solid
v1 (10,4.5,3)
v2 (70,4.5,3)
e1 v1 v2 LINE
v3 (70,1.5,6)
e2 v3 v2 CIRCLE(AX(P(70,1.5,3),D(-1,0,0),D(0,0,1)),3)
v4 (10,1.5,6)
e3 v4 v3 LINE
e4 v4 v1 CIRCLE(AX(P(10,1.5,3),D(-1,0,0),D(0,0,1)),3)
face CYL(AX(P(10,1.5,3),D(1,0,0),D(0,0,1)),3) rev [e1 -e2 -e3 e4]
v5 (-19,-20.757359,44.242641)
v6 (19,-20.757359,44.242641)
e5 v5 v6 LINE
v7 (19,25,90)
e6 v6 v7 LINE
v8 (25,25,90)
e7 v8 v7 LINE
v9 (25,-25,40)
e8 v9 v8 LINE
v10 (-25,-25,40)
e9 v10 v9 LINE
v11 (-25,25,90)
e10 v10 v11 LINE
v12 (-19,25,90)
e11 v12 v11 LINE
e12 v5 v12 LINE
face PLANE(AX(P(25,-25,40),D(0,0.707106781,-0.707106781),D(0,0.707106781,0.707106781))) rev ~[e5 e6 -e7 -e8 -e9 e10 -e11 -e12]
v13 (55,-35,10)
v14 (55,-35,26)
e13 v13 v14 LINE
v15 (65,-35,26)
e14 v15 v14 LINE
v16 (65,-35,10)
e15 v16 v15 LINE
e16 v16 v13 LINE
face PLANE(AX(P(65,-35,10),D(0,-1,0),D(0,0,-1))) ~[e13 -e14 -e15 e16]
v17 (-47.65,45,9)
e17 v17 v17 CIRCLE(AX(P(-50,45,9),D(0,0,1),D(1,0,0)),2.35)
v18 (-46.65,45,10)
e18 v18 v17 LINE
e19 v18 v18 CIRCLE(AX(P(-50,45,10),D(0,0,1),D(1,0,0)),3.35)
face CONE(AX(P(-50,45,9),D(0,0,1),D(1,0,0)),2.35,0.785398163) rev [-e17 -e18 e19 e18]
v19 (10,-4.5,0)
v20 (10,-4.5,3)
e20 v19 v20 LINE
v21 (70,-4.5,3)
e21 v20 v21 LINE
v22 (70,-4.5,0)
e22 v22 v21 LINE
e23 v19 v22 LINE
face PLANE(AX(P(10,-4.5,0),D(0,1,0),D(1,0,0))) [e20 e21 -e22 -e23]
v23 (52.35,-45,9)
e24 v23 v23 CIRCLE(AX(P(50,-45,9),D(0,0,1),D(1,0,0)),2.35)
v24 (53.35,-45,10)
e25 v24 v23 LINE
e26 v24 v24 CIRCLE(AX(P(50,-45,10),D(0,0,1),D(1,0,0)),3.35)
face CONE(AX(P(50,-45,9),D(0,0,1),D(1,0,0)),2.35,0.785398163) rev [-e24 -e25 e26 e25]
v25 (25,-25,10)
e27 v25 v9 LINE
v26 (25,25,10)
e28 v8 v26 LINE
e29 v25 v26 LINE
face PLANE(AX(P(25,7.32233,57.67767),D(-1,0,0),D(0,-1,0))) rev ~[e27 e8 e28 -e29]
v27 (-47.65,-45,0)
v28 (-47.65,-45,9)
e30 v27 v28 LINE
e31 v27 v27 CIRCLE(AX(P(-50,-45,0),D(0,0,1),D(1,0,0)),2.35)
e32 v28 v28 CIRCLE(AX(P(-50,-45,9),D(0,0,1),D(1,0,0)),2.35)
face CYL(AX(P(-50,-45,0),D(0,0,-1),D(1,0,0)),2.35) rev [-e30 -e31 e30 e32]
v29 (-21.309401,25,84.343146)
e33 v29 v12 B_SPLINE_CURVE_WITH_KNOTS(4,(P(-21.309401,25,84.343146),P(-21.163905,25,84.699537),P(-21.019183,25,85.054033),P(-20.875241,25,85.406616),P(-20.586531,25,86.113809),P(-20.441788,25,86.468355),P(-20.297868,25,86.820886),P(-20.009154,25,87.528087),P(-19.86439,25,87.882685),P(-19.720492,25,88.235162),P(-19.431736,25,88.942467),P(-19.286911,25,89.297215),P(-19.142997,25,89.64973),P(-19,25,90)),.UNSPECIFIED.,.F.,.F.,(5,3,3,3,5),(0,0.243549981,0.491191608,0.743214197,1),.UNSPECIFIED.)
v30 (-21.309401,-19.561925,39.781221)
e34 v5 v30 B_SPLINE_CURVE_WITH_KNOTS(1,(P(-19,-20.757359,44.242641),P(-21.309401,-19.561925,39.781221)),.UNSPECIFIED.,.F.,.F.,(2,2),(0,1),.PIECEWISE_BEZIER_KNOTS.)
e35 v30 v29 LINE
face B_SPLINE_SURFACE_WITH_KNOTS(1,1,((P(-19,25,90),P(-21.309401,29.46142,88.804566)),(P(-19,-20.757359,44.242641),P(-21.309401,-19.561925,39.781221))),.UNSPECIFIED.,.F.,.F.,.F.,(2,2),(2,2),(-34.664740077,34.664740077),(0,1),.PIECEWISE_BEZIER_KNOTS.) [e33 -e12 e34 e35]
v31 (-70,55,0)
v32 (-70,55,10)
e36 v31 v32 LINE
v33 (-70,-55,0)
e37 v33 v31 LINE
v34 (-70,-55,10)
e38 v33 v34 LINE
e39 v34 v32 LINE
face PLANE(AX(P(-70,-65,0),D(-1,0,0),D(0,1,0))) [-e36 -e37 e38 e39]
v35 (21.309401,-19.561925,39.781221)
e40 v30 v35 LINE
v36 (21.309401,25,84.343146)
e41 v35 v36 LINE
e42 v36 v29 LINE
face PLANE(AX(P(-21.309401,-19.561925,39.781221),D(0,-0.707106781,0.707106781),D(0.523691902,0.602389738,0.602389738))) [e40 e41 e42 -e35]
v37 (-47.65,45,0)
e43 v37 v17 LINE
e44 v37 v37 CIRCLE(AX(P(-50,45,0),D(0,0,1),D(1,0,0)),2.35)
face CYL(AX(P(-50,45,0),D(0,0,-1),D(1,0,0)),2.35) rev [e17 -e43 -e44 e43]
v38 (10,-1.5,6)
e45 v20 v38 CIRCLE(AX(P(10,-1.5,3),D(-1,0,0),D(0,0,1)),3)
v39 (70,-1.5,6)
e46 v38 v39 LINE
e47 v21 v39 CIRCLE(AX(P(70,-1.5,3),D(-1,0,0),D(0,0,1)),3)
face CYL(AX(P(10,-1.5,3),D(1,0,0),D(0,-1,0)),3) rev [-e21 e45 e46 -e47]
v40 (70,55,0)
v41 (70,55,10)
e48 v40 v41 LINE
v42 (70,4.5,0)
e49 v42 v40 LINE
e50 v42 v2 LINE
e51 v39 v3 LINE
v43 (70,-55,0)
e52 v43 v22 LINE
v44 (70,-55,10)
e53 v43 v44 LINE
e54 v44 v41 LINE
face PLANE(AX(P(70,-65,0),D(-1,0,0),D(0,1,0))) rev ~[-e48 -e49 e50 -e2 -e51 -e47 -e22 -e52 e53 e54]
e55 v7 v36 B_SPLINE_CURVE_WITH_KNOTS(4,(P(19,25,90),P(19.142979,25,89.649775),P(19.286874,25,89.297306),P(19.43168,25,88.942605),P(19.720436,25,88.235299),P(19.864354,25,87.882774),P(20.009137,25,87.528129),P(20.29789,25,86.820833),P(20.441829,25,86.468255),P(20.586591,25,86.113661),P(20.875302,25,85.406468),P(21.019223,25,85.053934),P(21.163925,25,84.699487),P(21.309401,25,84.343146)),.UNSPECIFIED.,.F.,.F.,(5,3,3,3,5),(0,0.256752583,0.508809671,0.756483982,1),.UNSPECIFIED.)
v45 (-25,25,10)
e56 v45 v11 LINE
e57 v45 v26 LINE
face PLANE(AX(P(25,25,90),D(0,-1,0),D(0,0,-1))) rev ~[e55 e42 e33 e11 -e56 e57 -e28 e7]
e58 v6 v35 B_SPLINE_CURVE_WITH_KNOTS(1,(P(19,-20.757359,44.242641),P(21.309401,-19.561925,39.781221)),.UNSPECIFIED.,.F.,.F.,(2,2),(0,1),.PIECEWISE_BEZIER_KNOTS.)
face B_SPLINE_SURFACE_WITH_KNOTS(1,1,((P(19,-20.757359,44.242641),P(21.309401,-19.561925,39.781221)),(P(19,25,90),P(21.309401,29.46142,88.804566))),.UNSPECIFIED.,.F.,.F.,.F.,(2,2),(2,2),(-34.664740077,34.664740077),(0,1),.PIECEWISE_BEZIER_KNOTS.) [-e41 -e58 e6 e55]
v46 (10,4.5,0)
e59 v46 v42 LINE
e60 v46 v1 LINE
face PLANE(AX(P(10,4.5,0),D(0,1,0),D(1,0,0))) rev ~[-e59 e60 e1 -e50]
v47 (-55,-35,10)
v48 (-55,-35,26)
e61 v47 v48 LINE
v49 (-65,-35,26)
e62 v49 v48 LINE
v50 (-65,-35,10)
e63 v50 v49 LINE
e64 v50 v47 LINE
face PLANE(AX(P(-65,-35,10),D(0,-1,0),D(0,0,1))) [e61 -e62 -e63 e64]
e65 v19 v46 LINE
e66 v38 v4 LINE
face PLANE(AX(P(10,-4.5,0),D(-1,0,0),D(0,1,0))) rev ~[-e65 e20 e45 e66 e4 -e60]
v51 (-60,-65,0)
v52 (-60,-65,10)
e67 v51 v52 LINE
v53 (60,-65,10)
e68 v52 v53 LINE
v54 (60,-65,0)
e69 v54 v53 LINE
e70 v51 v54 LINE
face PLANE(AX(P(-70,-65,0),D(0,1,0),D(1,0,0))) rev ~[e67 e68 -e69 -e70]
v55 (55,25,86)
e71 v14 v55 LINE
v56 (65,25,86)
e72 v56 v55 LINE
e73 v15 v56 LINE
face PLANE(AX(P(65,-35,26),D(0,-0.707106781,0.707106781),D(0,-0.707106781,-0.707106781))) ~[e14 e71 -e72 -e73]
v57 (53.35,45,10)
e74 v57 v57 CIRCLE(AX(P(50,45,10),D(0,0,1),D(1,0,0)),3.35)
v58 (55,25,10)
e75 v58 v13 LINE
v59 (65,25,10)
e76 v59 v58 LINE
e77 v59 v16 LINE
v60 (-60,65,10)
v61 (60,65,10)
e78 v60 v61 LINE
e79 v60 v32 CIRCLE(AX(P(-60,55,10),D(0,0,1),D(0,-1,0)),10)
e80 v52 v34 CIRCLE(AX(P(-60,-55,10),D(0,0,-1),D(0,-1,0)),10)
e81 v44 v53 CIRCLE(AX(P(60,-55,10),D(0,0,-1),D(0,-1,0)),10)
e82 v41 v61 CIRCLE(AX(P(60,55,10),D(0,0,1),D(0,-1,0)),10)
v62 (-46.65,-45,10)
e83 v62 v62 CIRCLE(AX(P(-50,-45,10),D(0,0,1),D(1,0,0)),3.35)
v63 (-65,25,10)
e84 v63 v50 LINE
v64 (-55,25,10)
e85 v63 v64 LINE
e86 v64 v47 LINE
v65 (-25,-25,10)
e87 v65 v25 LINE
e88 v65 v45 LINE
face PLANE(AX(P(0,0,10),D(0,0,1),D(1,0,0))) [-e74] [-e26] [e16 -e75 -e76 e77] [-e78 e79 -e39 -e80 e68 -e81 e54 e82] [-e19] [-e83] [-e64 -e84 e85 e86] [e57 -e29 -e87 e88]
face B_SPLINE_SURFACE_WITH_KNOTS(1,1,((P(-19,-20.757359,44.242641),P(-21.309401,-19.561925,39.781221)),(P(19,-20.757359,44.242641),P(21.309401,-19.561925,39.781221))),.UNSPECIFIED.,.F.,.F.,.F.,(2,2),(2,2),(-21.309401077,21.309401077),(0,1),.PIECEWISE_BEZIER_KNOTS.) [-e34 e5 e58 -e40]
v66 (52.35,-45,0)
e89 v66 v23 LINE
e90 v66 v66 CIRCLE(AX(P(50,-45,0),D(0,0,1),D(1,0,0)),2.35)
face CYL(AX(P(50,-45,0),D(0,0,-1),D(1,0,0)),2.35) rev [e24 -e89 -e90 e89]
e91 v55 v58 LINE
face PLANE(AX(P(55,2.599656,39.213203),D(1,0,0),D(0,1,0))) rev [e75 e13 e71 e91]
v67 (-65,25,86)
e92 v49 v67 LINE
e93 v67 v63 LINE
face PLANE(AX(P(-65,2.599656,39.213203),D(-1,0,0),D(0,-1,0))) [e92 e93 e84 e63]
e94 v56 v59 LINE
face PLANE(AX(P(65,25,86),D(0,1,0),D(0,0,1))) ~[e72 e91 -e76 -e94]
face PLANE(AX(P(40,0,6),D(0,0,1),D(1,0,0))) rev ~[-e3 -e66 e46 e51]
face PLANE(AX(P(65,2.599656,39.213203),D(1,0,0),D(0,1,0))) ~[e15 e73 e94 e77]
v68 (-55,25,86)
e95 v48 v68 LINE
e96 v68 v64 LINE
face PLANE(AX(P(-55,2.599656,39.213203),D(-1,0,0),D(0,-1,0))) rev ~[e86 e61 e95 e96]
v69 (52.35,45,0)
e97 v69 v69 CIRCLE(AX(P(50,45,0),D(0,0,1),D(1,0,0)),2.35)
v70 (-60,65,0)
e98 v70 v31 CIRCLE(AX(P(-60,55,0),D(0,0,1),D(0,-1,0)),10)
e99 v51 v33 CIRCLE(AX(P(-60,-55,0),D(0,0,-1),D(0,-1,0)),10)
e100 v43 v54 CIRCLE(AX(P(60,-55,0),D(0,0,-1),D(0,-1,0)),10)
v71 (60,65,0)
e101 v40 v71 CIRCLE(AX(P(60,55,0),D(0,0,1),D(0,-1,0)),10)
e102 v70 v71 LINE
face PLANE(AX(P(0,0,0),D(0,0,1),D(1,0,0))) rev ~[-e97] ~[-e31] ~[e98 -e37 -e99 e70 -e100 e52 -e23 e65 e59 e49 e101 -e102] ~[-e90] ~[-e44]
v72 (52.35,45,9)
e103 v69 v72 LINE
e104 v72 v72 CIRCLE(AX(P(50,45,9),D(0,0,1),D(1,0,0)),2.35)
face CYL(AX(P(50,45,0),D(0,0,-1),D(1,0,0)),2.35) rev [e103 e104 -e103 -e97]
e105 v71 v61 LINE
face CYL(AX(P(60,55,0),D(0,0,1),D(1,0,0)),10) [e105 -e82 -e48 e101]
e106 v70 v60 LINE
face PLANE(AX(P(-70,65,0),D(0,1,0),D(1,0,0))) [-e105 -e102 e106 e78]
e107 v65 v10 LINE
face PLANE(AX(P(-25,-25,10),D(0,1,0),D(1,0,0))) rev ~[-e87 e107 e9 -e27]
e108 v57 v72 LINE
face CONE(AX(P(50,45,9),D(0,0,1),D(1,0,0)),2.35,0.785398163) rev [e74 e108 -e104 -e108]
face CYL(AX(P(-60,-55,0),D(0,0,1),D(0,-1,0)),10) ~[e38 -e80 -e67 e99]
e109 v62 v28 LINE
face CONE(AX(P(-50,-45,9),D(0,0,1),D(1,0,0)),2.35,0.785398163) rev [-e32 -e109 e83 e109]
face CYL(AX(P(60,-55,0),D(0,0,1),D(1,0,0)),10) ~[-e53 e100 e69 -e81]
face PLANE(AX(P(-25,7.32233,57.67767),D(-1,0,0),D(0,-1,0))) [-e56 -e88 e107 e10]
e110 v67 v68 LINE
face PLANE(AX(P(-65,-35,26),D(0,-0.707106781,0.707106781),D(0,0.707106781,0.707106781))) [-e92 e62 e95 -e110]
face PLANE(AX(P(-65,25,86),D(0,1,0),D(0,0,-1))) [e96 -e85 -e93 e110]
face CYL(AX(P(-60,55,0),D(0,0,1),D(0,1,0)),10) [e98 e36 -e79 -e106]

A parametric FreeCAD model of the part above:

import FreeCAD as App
import Part
import Sketcher

V = App.Vector


def edges_at(feature, points):
    """Names of the edges that pass closest to the given points."""
    edges = feature.Shape.Edges
    near = lambda p: min(range(len(edges)), key=lambda i: edges[i].distToShape(Part.Vertex(*p))[0])
    return sorted({f"Edge{near(p) + 1}" for p in points})

doc = App.newDocument("Part")
body = doc.addObject("PartDesign::Body", "Body")

# Sketch on XY plane
sketch1 = body.newObject("Sketcher::SketchObject", "Sketch")
sketch1.AttachmentSupport = (doc.getObject("XY_Plane"), [""])
sketch1.MapMode = "FlatFace"
sketch1.addGeometry([
    Part.LineSegment(V(-70, 65, 0), V(-70, -65, 0)),  # 0
    Part.LineSegment(V(-70, -65, 0), V(70, -65, 0)),  # 1
    Part.LineSegment(V(70, -65, 0), V(70, 65, 0)),  # 2
    Part.LineSegment(V(70, 65, 0), V(-70, 65, 0)),  # 3
    Part.Circle(V(-50, -45, 0), V(0, 0, 1), 2.4),  # 4
    Part.Circle(V(50, -45, 0), V(0, 0, 1), 2.4),  # 5
    Part.Circle(V(-50, 45, 0), V(0, 0, 1), 2.4),  # 6
    Part.Circle(V(50, 45, 0), V(0, 0, 1), 2.4),  # 7
], False)
sketch1.addConstraint([
    Sketcher.Constraint("Coincident", 0, 2, 1, 1),
    Sketcher.Constraint("Coincident", 1, 2, 2, 1),
    Sketcher.Constraint("Coincident", 2, 2, 3, 1),
    Sketcher.Constraint("Coincident", 3, 2, 0, 1),
    Sketcher.Constraint("Vertical", 0),
    Sketcher.Constraint("Horizontal", 1),
    Sketcher.Constraint("Vertical", 2),
    Sketcher.Constraint("Horizontal", 3),
    Sketcher.Constraint("Equal", 4, 5),
    Sketcher.Constraint("Equal", 5, 6),
    Sketcher.Constraint("Equal", 6, 7),
    Sketcher.Constraint("Symmetric", 5, 3, 6, 3, -1, 1),
    Sketcher.Constraint("Symmetric", 4, 3, 7, 3, -1, 1),
    Sketcher.Constraint("Symmetric", 0, 2, 2, 2, -1, 1),
    Sketcher.Constraint("Symmetric", 4, 3, 5, 3, -2),
    Sketcher.Constraint("Diameter", 4, 4.7),
    Sketcher.Constraint("DistanceX", 1, 1, 1, 2, 140.0),
    Sketcher.Constraint("DistanceY", 0, 2, 0, 1, 130.0),
    Sketcher.Constraint("DistanceX", 4, 3, -1, 1, 50.0),
    Sketcher.Constraint("DistanceY", 4, 3, -1, 1, 45.0),
])
pad1 = body.newObject("PartDesign::Pad", "Pad")
pad1.Profile = sketch1
pad1.Length = 10

# Sketch on XY plane
sketch2 = body.newObject("Sketcher::SketchObject", "Sketch001")
sketch2.AttachmentSupport = (doc.getObject("XY_Plane"), [""])
sketch2.MapMode = "FlatFace"
sketch2.AttachmentOffset = App.Placement(V(0, 0, 10), App.Rotation())
sketch2.addGeometry([
    Part.LineSegment(V(-25, 25, 0), V(-25, -25, 0)),
    Part.LineSegment(V(-25, -25, 0), V(25, -25, 0)),
    Part.LineSegment(V(25, -25, 0), V(25, 25, 0)),
    Part.LineSegment(V(25, 25, 0), V(-25, 25, 0)),
], False)
sketch2.addConstraint([
    Sketcher.Constraint("Coincident", 0, 2, 1, 1),
    Sketcher.Constraint("Coincident", 1, 2, 2, 1),
    Sketcher.Constraint("Coincident", 2, 2, 3, 1),
    Sketcher.Constraint("Coincident", 3, 2, 0, 1),
    Sketcher.Constraint("Vertical", 0),
    Sketcher.Constraint("Horizontal", 1),
    Sketcher.Constraint("Vertical", 2),
    Sketcher.Constraint("Horizontal", 3),
    Sketcher.Constraint("Symmetric", 0, 2, 2, 2, -1, 1),
    Sketcher.Constraint("Equal", 3, 0),
    Sketcher.Constraint("DistanceX", 1, 1, 1, 2, 50.0),
])
pad2 = body.newObject("PartDesign::Pad", "Pad001")
pad2.Profile = sketch2
pad2.Length = 30

# Sketch on YZ plane
sketch3 = body.newObject("Sketcher::SketchObject", "Sketch002")
sketch3.AttachmentSupport = (doc.getObject("YZ_Plane"), [""])
sketch3.MapMode = "FlatFace"
sketch3.AttachmentOffset = App.Placement(V(0, 0, 25), App.Rotation())
sketch3.addGeometry([
    Part.LineSegment(V(25, 90, 0), V(-25, 40, 0)),
    Part.LineSegment(V(-25, 40, 0), V(25, 40, 0)),
    Part.LineSegment(V(25, 40, 0), V(25, 90, 0)),
], False)
sketch3.addConstraint([
    Sketcher.Constraint("Coincident", 0, 2, 1, 1),
    Sketcher.Constraint("Coincident", 1, 2, 2, 1),
    Sketcher.Constraint("Coincident", 2, 2, 0, 1),
    Sketcher.Constraint("Horizontal", 1),
    Sketcher.Constraint("Vertical", 2),
    Sketcher.Constraint("Equal", 1, 2),
    Sketcher.Constraint("DistanceX", 1, 1, 1, 2, 50.0),
    Sketcher.Constraint("DistanceX", 0, 2, -1, 1, 25.0),
    Sketcher.Constraint("DistanceY", -1, 1, 0, 2, 40.0),
])
pad3 = body.newObject("PartDesign::Pad", "Pad002")
pad3.Profile = sketch3
pad3.Length = 50
pad3.Reversed = True
doc.recompute()

fillet = body.newObject("PartDesign::Fillet", "Fillet")
fillet.Base = (pad3, edges_at(pad3, [
    (70, -65, 5),
    (70, 65, 5),
    (-70, -65, 5),
    (-70, 65, 5),
]))
fillet.Radius = 10
doc.recompute()

chamfer = body.newObject("PartDesign::Chamfer", "Chamfer")
chamfer.Base = (fillet, edges_at(fillet, [
    (-52.35, -45, 10),
    (47.65, -45, 10),
    (47.65, 45, 10),
    (-52.35, 45, 10),
]))
chamfer.Size = 1

# Sketch on an angled plane
sketch4 = body.newObject("Sketcher::SketchObject", "Sketch003")
sketch4.Placement = App.Placement(V(0, -32.5, 32.5), App.Rotation(V(1, 0, 0), V(0, 0.707106781, 0.707106781), V(0, -0.707106781, 0.707106781), "ZXY"))
sketch4.addGeometry([
    Part.LineSegment(V(-19, 81, 0), V(-19, 17, 0)),
    Part.LineSegment(V(-19, 17, 0), V(19, 17, 0)),
    Part.LineSegment(V(19, 17, 0), V(19, 81, 0)),
    Part.LineSegment(V(19, 81, 0), V(-19, 81, 0)),
], False)
sketch4.addConstraint([
    Sketcher.Constraint("Coincident", 0, 2, 1, 1),
    Sketcher.Constraint("Coincident", 1, 2, 2, 1),
    Sketcher.Constraint("Coincident", 2, 2, 3, 1),
    Sketcher.Constraint("Coincident", 3, 2, 0, 1),
    Sketcher.Constraint("Vertical", 0),
    Sketcher.Constraint("Horizontal", 1),
    Sketcher.Constraint("Vertical", 2),
    Sketcher.Constraint("Horizontal", 3),
    Sketcher.Constraint("DistanceX", 1, 1, 1, 2, 38.0),
    Sketcher.Constraint("DistanceX", 0, 2, -1, 1, 19.0),
    Sketcher.Constraint("DistanceY", -1, 1, 0, 2, 16.606602),
    Sketcher.Constraint("DistanceY", 0, 2, 0, 1, 64.710678),
])
pocket1 = body.newObject("PartDesign::Pocket", "Pocket")
pocket1.Profile = sketch4
pocket1.Length = 4
pocket1.TaperAngle = 30

# Sketch on YZ plane
sketch5 = body.newObject("Sketcher::SketchObject", "Sketch004")
sketch5.AttachmentSupport = (doc.getObject("YZ_Plane"), [""])
sketch5.MapMode = "FlatFace"
sketch5.AttachmentOffset = App.Placement(V(0, 0, -65), App.Rotation())
sketch5.addGeometry([
    Part.LineSegment(V(-35, 26, 0), V(-35, 10, 0)),
    Part.LineSegment(V(-35, 10, 0), V(25, 10, 0)),
    Part.LineSegment(V(25, 10, 0), V(25, 86, 0)),
    Part.LineSegment(V(25, 86, 0), V(-35, 26, 0)),
], False)
sketch5.addConstraint([
    Sketcher.Constraint("Coincident", 0, 2, 1, 1),
    Sketcher.Constraint("Coincident", 1, 2, 2, 1),
    Sketcher.Constraint("Coincident", 2, 2, 3, 1),
    Sketcher.Constraint("Coincident", 3, 2, 0, 1),
    Sketcher.Constraint("Vertical", 0),
    Sketcher.Constraint("Horizontal", 1),
    Sketcher.Constraint("Vertical", 2),
    Sketcher.Constraint("DistanceX", 1, 1, 1, 2, 60.0),
    Sketcher.Constraint("DistanceY", 0, 2, 0, 1, 16.0),
    Sketcher.Constraint("DistanceY", 2, 1, 2, 2, 76.0),
    Sketcher.Constraint("DistanceX", 0, 2, -1, 1, 35.0),
    Sketcher.Constraint("DistanceY", -1, 1, 0, 2, 10.0),
])
pad4 = body.newObject("PartDesign::Pad", "Pad003")
pad4.Profile = sketch5
pad4.Length = 10
doc.recompute()

mirrored = body.newObject("PartDesign::Mirrored", "Mirrored")
mirrored.Originals = [pad4]
mirrored.MirrorPlane = (doc.getObject("YZ_Plane"), [""])
body.Tip = mirrored

# Sketch on XY plane
sketch6 = body.newObject("Sketcher::SketchObject", "Sketch005")
sketch6.AttachmentSupport = (doc.getObject("XY_Plane"), [""])
sketch6.MapMode = "FlatFace"
sketch6.addGeometry([
    Part.LineSegment(V(10, 4, 0), V(10, -4, 0)),
    Part.LineSegment(V(10, -4, 0), V(70, -4, 0)),
    Part.LineSegment(V(70, -4, 0), V(70, 4, 0)),
    Part.LineSegment(V(70, 4, 0), V(10, 4, 0)),
], False)
sketch6.addConstraint([
    Sketcher.Constraint("Coincident", 0, 2, 1, 1),
    Sketcher.Constraint("Coincident", 1, 2, 2, 1),
    Sketcher.Constraint("Coincident", 2, 2, 3, 1),
    Sketcher.Constraint("Coincident", 3, 2, 0, 1),
    Sketcher.Constraint("Vertical", 0),
    Sketcher.Constraint("Horizontal", 1),
    Sketcher.Constraint("Vertical", 2),
    Sketcher.Constraint("Horizontal", 3),
    Sketcher.Constraint("DistanceX", 1, 1, 1, 2, 60.0),
    Sketcher.Constraint("DistanceY", 0, 2, 0, 1, 9.0),
    Sketcher.Constraint("DistanceX", -1, 1, 0, 2, 10.0),
    Sketcher.Constraint("DistanceY", 0, 2, -1, 1, 4.5),
])
pocket2 = body.newObject("PartDesign::Pocket", "Pocket001")
pocket2.Profile = sketch6
pocket2.Length = 6
pocket2.Reversed = True
doc.recompute()

fillet2 = body.newObject("PartDesign::Fillet", "Fillet001")
fillet2.Base = (pocket2, edges_at(pocket2, [(40, 4.5, 6), (40, -4.5, 6)]))
fillet2.Radius = 3

doc.recompute()
